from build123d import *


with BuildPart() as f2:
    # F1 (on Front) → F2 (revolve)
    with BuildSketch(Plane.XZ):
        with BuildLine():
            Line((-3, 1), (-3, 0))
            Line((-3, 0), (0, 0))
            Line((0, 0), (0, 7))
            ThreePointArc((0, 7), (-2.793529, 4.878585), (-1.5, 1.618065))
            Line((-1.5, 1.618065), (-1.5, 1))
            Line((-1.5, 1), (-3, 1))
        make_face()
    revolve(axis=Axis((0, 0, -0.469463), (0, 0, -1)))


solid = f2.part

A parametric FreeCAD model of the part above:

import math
import FreeCAD as App
import Part
import Sketcher

V = App.Vector
Q = App.Units.Quantity

doc = App.newDocument("Part")
body = doc.addObject("PartDesign::Body", "Body")

# Sketch on XZ plane
sketch1 = body.newObject("Sketcher::SketchObject", "Sketch")
sketch1.AttachmentSupport = (doc.getObject("XZ_Plane"), [""])
sketch1.MapMode = "FlatFace"
sketch1.addGeometry(Part.LineSegment(V(-3, 1, 0), V(-3, 0, 0)), False)
sketch1.addGeometry(Part.LineSegment(V(-3, 0, 0), V(0, 0, 0)), False)
sketch1.addGeometry(Part.LineSegment(V(0, 0, 0), V(0, 7, 0)), False)
sketch1.addGeometry(Part.ArcOfCircle(Part.Circle(V(0, 4.1, 0), V(0, 0, 1), 2.9), math.radians(90), math.radians(239)), False)
sketch1.addGeometry(Part.LineSegment(V(-1.5, 1.6, 0), V(-1.5, 1, 0)), False)
sketch1.addGeometry(Part.LineSegment(V(-1.5, 1, 0), V(-3, 1, 0)), False)
sketch1.addConstraint(Sketcher.Constraint("Coincident", 0, 2, 1, 1))
sketch1.addConstraint(Sketcher.Constraint("Coincident", 1, 2, 2, 1))
sketch1.addConstraint(Sketcher.Constraint("Coincident", 2, 2, 3, 1))
sketch1.addConstraint(Sketcher.Constraint("Coincident", 3, 2, 4, 1))
sketch1.addConstraint(Sketcher.Constraint("Coincident", 4, 2, 5, 1))
sketch1.addConstraint(Sketcher.Constraint("Coincident", 5, 2, 0, 1))
sketch1.addConstraint(Sketcher.Constraint("Vertical", 0))
sketch1.addConstraint(Sketcher.Constraint("Horizontal", 1))
sketch1.addConstraint(Sketcher.Constraint("Vertical", 2))
sketch1.addConstraint(Sketcher.Constraint("Vertical", 4))
sketch1.addConstraint(Sketcher.Constraint("Horizontal", 5))
sketch1.addConstraint(Sketcher.Constraint("Coincident", 1, 2, -1, 1))
sketch1.addConstraint(Sketcher.Constraint("PointOnObject", 3, 3, -2))
sketch1.addConstraint(Sketcher.Constraint("Radius", 3, Q("2.9 mm")))
sketch1.addConstraint(Sketcher.Constraint("DistanceX", 1, 1, 1, 2, Q("3 mm")))
sketch1.addConstraint(Sketcher.Constraint("DistanceY", 0, 2, 0, 1, Q("1 mm")))
sketch1.addConstraint(Sketcher.Constraint("DistanceY", 2, 1, 2, 2, Q("7 mm")))
sketch1.addConstraint(Sketcher.Constraint("DistanceX", 5, 2, 5, 1, Q("1.5 mm")))
revolution = body.newObject("PartDesign::Revolution", "Revolution")
revolution.Profile = sketch1
revolution.ReferenceAxis = (sketch1, ["V_Axis"])
revolution.Angle = 360

doc.recompute()
